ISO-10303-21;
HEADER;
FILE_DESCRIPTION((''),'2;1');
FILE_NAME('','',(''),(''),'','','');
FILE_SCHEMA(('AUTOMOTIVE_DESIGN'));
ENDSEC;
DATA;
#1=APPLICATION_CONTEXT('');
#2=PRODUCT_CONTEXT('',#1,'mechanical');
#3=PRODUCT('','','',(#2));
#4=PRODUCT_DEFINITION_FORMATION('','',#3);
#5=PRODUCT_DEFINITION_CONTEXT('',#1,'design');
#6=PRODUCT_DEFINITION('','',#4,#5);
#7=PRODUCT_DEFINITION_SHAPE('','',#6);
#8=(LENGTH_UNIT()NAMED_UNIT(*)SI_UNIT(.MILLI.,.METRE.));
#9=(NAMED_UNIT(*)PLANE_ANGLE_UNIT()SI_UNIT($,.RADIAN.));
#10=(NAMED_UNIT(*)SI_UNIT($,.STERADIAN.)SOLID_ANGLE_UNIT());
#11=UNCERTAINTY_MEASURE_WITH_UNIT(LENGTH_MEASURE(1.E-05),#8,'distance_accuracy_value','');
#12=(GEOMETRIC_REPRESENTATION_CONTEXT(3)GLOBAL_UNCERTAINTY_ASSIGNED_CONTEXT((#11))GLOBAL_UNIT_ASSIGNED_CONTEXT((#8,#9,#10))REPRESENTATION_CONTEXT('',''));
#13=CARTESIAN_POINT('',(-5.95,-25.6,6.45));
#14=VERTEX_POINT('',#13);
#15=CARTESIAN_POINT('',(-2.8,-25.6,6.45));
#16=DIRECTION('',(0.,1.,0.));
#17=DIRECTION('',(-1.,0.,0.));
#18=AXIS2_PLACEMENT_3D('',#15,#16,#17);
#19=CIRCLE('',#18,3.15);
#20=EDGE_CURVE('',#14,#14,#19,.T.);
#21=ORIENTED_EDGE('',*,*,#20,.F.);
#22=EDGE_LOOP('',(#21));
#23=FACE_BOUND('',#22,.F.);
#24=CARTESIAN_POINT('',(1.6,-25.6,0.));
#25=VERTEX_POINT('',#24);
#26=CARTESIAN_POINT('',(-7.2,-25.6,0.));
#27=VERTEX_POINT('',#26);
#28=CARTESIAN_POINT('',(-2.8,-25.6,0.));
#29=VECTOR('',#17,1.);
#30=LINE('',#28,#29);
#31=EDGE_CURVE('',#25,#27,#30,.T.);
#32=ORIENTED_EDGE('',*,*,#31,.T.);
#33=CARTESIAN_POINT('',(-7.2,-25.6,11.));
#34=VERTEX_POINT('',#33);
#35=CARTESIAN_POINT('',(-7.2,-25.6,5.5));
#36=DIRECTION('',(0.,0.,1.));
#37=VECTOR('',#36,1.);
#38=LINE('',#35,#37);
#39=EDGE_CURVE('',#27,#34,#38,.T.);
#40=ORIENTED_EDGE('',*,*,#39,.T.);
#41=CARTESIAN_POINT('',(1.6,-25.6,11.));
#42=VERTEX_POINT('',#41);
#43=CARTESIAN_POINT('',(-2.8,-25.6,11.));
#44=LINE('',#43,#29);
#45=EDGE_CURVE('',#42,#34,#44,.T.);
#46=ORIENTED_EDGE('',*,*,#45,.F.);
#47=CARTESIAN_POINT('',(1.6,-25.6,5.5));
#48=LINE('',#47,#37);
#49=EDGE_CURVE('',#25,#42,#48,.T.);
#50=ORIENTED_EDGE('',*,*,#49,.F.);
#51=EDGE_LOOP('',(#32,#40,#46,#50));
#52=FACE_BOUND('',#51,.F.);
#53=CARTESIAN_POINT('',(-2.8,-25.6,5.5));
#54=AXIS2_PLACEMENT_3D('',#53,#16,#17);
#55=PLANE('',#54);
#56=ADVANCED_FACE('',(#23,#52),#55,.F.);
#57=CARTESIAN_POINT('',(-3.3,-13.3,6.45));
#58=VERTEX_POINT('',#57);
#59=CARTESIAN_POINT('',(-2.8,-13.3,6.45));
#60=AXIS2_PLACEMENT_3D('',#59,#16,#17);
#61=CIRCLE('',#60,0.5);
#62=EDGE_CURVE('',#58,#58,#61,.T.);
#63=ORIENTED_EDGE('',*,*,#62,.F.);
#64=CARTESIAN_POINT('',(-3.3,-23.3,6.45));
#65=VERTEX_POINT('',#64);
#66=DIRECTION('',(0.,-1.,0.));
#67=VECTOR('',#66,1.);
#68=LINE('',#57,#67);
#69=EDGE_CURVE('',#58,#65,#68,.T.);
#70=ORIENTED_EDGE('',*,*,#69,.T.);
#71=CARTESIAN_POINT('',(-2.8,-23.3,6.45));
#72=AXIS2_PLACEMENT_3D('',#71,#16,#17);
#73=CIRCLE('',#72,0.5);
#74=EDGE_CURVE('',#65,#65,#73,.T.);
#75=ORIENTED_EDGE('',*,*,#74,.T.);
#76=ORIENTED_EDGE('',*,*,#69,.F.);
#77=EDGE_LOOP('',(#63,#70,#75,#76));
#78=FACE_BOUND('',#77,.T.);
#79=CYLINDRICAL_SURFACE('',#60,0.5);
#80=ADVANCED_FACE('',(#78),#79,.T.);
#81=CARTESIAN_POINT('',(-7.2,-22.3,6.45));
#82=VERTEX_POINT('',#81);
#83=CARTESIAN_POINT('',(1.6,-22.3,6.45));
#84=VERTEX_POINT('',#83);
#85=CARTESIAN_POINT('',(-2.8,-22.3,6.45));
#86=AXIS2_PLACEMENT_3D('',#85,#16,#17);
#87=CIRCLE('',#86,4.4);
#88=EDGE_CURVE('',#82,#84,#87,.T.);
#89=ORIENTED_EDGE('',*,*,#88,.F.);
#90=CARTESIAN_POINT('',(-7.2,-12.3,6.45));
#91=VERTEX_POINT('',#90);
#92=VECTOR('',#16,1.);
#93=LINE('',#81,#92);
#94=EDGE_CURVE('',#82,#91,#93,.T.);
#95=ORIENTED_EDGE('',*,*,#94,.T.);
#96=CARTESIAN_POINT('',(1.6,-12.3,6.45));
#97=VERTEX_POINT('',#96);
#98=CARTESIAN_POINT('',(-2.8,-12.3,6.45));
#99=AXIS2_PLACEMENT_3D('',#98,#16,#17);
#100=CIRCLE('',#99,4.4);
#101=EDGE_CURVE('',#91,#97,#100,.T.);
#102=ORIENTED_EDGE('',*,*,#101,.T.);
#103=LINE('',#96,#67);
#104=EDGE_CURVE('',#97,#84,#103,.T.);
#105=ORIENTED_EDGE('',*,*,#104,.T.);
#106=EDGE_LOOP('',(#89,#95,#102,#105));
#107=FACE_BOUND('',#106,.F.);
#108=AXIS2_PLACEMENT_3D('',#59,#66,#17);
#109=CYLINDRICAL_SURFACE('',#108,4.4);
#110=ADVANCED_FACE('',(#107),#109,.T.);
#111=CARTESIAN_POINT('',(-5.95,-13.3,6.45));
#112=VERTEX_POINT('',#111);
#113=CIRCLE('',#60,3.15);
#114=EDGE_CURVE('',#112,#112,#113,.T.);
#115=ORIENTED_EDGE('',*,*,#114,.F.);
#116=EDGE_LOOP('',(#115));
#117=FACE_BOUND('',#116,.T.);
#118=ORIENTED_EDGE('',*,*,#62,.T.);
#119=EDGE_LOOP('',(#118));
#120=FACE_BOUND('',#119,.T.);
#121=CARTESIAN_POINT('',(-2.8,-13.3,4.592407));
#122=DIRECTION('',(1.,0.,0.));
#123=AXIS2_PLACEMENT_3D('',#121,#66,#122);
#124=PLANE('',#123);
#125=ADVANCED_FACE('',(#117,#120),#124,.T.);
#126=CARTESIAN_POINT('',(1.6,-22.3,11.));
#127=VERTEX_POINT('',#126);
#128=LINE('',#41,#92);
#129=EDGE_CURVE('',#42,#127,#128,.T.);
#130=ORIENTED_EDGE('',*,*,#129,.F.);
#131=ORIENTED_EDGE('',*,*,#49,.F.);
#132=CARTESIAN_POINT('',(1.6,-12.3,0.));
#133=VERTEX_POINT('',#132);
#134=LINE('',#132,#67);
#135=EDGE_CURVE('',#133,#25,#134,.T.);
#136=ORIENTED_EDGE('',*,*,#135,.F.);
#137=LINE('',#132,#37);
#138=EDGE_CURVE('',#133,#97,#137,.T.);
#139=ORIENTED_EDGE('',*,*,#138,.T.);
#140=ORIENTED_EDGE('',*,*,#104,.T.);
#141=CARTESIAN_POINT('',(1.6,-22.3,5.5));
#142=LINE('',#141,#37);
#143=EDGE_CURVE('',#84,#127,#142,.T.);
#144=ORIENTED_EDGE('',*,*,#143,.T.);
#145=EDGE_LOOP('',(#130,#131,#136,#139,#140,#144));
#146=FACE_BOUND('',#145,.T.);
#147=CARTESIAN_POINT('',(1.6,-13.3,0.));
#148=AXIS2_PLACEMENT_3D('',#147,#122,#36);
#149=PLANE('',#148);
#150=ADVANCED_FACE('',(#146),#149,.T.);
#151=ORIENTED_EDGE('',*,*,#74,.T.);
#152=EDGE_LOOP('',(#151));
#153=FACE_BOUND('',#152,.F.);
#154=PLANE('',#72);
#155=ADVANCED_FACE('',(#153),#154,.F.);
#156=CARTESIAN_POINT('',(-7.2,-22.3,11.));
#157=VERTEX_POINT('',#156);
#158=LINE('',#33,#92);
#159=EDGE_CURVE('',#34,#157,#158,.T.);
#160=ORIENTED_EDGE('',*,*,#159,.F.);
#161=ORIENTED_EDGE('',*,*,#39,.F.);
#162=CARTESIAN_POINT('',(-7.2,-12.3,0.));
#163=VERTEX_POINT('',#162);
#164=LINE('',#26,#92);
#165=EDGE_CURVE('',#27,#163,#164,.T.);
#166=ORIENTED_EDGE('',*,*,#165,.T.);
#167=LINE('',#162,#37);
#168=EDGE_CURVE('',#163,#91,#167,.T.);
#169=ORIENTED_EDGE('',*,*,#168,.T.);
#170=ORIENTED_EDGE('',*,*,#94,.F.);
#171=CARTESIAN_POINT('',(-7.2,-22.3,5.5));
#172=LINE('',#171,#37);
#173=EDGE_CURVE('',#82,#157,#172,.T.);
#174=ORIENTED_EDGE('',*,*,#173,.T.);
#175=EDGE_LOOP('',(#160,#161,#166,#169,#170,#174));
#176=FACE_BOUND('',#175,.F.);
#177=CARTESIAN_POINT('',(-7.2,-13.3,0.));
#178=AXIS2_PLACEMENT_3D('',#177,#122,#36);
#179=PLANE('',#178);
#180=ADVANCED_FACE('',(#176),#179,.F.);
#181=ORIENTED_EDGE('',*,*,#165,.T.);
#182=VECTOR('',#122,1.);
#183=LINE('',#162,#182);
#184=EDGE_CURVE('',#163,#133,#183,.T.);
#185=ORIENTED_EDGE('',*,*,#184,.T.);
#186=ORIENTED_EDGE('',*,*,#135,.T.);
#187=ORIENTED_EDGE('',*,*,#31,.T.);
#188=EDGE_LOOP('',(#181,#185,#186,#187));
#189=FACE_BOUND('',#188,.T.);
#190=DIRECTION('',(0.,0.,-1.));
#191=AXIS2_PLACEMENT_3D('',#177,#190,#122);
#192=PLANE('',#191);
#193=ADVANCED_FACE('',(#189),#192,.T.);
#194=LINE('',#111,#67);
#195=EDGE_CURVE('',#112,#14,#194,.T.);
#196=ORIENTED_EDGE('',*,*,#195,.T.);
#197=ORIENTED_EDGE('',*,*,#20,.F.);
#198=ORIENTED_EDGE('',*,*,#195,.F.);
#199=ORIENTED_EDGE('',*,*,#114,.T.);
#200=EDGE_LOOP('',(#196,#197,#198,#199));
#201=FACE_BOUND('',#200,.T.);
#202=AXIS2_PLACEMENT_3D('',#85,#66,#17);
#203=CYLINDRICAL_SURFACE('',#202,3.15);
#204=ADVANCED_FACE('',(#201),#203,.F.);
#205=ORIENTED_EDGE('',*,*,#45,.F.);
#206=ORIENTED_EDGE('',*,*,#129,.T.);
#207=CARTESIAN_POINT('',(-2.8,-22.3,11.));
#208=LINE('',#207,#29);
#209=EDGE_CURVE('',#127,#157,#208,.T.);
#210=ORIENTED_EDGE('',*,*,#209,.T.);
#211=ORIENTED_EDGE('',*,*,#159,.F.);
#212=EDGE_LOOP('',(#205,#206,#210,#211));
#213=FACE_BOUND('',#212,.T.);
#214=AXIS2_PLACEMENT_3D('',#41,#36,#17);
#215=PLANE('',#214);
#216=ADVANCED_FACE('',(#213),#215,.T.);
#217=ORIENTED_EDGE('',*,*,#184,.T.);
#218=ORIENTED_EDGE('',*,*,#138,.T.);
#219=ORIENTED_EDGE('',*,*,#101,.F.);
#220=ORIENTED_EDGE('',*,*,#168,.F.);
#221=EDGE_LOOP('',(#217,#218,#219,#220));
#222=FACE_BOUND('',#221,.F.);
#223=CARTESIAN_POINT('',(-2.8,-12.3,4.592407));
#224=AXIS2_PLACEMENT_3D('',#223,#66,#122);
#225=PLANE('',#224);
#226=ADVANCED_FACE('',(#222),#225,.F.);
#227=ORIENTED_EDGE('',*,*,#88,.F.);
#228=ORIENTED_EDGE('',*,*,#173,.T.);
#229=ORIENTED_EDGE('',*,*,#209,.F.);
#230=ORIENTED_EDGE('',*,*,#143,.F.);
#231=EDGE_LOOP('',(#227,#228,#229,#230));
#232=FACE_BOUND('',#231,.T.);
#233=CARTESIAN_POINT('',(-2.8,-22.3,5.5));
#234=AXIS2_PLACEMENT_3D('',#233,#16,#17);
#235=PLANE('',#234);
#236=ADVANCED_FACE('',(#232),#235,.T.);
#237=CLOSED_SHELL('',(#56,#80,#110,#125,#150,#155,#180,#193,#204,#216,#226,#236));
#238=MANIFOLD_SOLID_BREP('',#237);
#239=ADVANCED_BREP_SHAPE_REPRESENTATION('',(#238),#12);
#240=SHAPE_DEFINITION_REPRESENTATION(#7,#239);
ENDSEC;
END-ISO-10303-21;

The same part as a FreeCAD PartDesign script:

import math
import FreeCAD as App
import Part
import Sketcher
from FreeCAD import Vector


def add_polygon(sketch, points):
    """Adds a closed chain of lines whose ends are joined by coincident constraints."""
    first, n = sketch.GeometryCount, len(points)
    for a, b in zip(points, points[1:] + points[:1]):
        sketch.addGeometry(Part.LineSegment(App.Vector(*a, 0), App.Vector(*b, 0)), False)
    for i in range(n):
        sketch.addConstraint(Sketcher.Constraint("Coincident", first + i, 2, first + (i + 1) % n, 1))

doc = App.newDocument("Part")
params = doc.addObject("Spreadsheet::Sheet", "Params")
for row, (alias, value) in enumerate([
    ("sketch1_diameter", "6.3 mm"),
    ("sketch1_height", "11 mm"),
    ("sketch1_width", "8.8 mm"),
    ("pad1_length", "3.3 mm"),
    ("sketch2_diameter", "6.3 mm"),
    ("sketch2_radius", "4.4 mm"),
    ("sketch2_height", "6.45 mm"),
    ("pad2_length", "9 mm"),
    ("sketch3_radius", "4.4 mm"),
    ("sketch3_height", "6.45 mm"),
    ("pad3_length", "1 mm"),
    ("sketch4_diameter", "1 mm"),
    ("pad4_length", "10 mm"),
], start=1):
    params.set(f"A{row}", alias)
    params.set(f"B{row}", "=" + value)
    params.setAlias(f"B{row}", alias)

body = doc.addObject("PartDesign::Body", "Body")

# Sketch on XZ plane
sketch1 = doc.addObject("Sketcher::SketchObject", "Sketch")
body.addObject(sketch1)
sketch1.AttachmentSupport = (doc.XZ_Plane, [""])
sketch1.MapMode = "FlatFace"
sketch1.AttachmentOffset = App.Placement(Vector(0, 0, 6.3), App.Rotation())
add_polygon(sketch1, [(4.4, 11), (4.4, 0), (-4.4, 0), (-4.4, 11)])  # lines 0-3
sketch1.addGeometry(Part.Circle(Vector(0, 6.45, 0), Vector(0, 0, 1), 3.15), False)  # 4
sketch1.addConstraint([
    Sketcher.Constraint("Vertical", 0),
    Sketcher.Constraint("Horizontal", 1),
    Sketcher.Constraint("Vertical", 2),
    Sketcher.Constraint("Horizontal", 3),
    Sketcher.Constraint("Symmetric", 0, 2, 1, 2, -1, 1),
    Sketcher.Constraint("PointOnObject", 4, 3, -2),
    Sketcher.Constraint("Diameter", 4, 6.3),
    Sketcher.Constraint("DistanceY", 0, 2, 0, 1, 11.0),
    Sketcher.Constraint("DistanceX", 1, 2, 1, 1, 8.8),
    Sketcher.Constraint("DistanceY", -1, 1, 4, 3, 6.45),
])
sketch1.setExpression("Constraints[10]", "Params.sketch1_diameter")
sketch1.setExpression("Constraints[11]", "Params.sketch1_height")
sketch1.setExpression("Constraints[12]", "Params.sketch1_width")
pad1 = doc.addObject("PartDesign::Pad", "Pad")
body.addObject(pad1)
pad1.Profile = sketch1
pad1.setExpression("Length", "Params.pad1_length")
pad1.Reversed = True

# Sketch on XZ plane
sketch2 = doc.addObject("Sketcher::SketchObject", "Sketch001")
body.addObject(sketch2)
sketch2.AttachmentSupport = (doc.XZ_Plane, [""])
sketch2.MapMode = "FlatFace"
sketch2.AttachmentOffset = App.Placement(Vector(0, 0, 3), App.Rotation())
sketch2.addGeometry([
    Part.LineSegment(Vector(4.4, 0, 0), Vector(-4.4, 0, 0)),  # 0
    Part.LineSegment(Vector(-4.4, 0, 0), Vector(-4.4, 6.45, 0)),  # 1
    Part.ArcOfCircle(Part.Circle(Vector(0, 6.45, 0), Vector(0, 0, 1), 4.4), math.radians(0), math.radians(180)),  # 2
    Part.LineSegment(Vector(4.4, 6.45, 0), Vector(4.4, 0, 0)),  # 3
    Part.Circle(Vector(0, 6.45, 0), Vector(0, 0, 1), 3.15),  # 4
], False)
sketch2.addConstraint([
    Sketcher.Constraint("Coincident", 0, 2, 1, 1),
    Sketcher.Constraint("Tangent", 1, 2, 2, 2),
    Sketcher.Constraint("Tangent", 2, 1, 3, 1),
    Sketcher.Constraint("Coincident", 3, 2, 0, 1),
    Sketcher.Constraint("Horizontal", 0),
    Sketcher.Constraint("Vertical", 1),
    Sketcher.Constraint("Vertical", 3),
    Sketcher.Constraint("Coincident", 4, 3, 2, 3),
    Sketcher.Constraint("Symmetric", 0, 2, 3, 2, -1, 1),
    Sketcher.Constraint("Diameter", 4, 6.3),
    Sketcher.Constraint("Radius", 2, 4.4),
    Sketcher.Constraint("DistanceY", 1, 1, 1, 2, 6.45),
])
sketch2.setExpression("Constraints[9]", "Params.sketch2_diameter")
sketch2.setExpression("Constraints[10]", "Params.sketch2_radius")
sketch2.setExpression("Constraints[11]", "Params.sketch2_height")
pad2 = doc.addObject("PartDesign::Pad", "Pad001")
body.addObject(pad2)
pad2.Profile = sketch2
pad2.setExpression("Length", "Params.pad2_length")
pad2.Reversed = True

# Sketch on XZ plane
sketch3 = doc.addObject("Sketcher::SketchObject", "Sketch002")
body.addObject(sketch3)
sketch3.AttachmentSupport = (doc.XZ_Plane, [""])
sketch3.MapMode = "FlatFace"
sketch3.AttachmentOffset = App.Placement(Vector(0, 0, -6), App.Rotation())
sketch3.addGeometry([
    Part.LineSegment(Vector(4.4, 0, 0), Vector(-4.4, 0, 0)),
    Part.LineSegment(Vector(-4.4, 0, 0), Vector(-4.4, 6.45, 0)),
    Part.ArcOfCircle(Part.Circle(Vector(0, 6.45, 0), Vector(0, 0, 1), 4.4), math.radians(0), math.radians(180)),
    Part.LineSegment(Vector(4.4, 6.45, 0), Vector(4.4, 0, 0)),
], False)
sketch3.addConstraint([
    Sketcher.Constraint("Coincident", 0, 2, 1, 1),
    Sketcher.Constraint("Tangent", 1, 2, 2, 2),
    Sketcher.Constraint("Tangent", 2, 1, 3, 1),
    Sketcher.Constraint("Coincident", 3, 2, 0, 1),
    Sketcher.Constraint("Horizontal", 0),
    Sketcher.Constraint("Vertical", 1),
    Sketcher.Constraint("Vertical", 3),
    Sketcher.Constraint("Symmetric", 0, 2, 3, 2, -1, 1),
    Sketcher.Constraint("Radius", 2, 4.4),
    Sketcher.Constraint("DistanceY", 1, 1, 1, 2, 6.45),
])
sketch3.setExpression("Constraints[8]", "Params.sketch3_radius")
sketch3.setExpression("Constraints[9]", "Params.sketch3_height")
pad3 = doc.addObject("PartDesign::Pad", "Pad002")
body.addObject(pad3)
pad3.Profile = sketch3
pad3.setExpression("Length", "Params.pad3_length")
pad3.Reversed = True

# Sketch on XZ plane
sketch4 = doc.addObject("Sketcher::SketchObject", "Sketch003")
body.addObject(sketch4)
sketch4.AttachmentSupport = (doc.XZ_Plane, [""])
sketch4.MapMode = "FlatFace"
sketch4.AttachmentOffset = App.Placement(Vector(0, 0, -6), App.Rotation())
sketch4.addGeometry(Part.Circle(Vector(0, 6.45, 0), Vector(0, 0, 1), 0.5), False)
sketch4.addConstraint([
    Sketcher.Constraint("PointOnObject", 0, 3, -2),
    Sketcher.Constraint("Diameter", 0, 1.0),
    Sketcher.Constraint("DistanceY", -1, 1, 0, 3, 6.45),
])
sketch4.setExpression("Constraints[1]", "Params.sketch4_diameter")
pad4 = doc.addObject("PartDesign::Pad", "Pad003")
body.addObject(pad4)
pad4.Profile = sketch4
pad4.setExpression("Length", "Params.pad4_length")
body2 = doc.addObject("PartDesign::Body", "Body001")
doc.recompute()

body.Placement = App.Placement(Vector(-2.8, -19.3, 0), App.Rotation(Vector(0, 0, 1), 0))
boolean = doc.addObject("PartDesign::Boolean", "Boolean")
body2.addObject(boolean)
boolean.Type = "Fuse"
boolean.addObjects([body])

doc.recompute()
